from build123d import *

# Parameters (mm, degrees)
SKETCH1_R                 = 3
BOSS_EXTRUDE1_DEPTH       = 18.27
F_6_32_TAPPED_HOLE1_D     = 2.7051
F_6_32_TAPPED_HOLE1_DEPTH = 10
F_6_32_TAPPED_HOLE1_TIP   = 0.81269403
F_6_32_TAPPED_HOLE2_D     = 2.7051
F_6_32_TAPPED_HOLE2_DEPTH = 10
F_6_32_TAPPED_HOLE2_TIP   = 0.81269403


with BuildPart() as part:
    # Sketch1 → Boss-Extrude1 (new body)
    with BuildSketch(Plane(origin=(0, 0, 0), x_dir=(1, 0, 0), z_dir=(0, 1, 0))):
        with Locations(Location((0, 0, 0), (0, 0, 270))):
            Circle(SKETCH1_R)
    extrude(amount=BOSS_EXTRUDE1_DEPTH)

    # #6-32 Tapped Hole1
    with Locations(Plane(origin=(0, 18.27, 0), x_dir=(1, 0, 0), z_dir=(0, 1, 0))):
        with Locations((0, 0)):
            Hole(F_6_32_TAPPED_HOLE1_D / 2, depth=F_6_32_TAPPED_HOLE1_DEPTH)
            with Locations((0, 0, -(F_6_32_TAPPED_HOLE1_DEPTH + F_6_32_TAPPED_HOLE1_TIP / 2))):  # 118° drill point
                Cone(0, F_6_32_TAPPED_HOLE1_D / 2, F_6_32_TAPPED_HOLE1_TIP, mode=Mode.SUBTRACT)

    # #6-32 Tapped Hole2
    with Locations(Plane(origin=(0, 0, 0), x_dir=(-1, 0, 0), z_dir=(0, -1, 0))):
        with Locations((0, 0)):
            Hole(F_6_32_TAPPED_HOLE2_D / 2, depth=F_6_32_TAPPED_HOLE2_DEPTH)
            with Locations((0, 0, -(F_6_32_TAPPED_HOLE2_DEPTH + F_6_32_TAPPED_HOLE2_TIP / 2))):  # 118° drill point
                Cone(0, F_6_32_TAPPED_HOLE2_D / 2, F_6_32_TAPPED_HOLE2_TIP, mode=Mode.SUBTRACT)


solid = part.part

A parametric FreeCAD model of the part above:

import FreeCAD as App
import Part
import Sketcher
from FreeCAD import Vector
Q = App.Units.Quantity

doc = App.newDocument("Part")
params = doc.addObject("Spreadsheet::Sheet", "Params")
for row, (alias, value) in enumerate([
    ("sketch1_diameter", "6 mm"),
    ("pad1_length", "18.27 mm"),
    ("hole_diameter", "2.7051 mm"),
    ("hole_depth", "10 mm"),
    ("hole2_diameter", "2.7051 mm"),
    ("hole2_depth", "10 mm"),
], start=1):
    params.set(f"A{row}", alias)
    params.set(f"B{row}", "=" + value)
    params.setAlias(f"B{row}", alias)

body = doc.addObject("PartDesign::Body", "Body")

# Sketch on XZ plane
sketch1 = body.newObject("Sketcher::SketchObject", "Sketch")
sketch1.AttachmentSupport = (doc.getObject("XZ_Plane"), [""])
sketch1.MapMode = "FlatFace"
sketch1.addGeometry(Part.Circle(Vector(0, 0, 0), Vector(0, 0, 1), 3), False)
sketch1.addConstraint([
    Sketcher.Constraint("Coincident", 0, 3, -1, 1),
    Sketcher.Constraint("Diameter", 0, Q("6 mm")),
])
sketch1.setExpression("Constraints[1]", "Params.sketch1_diameter")
pad1 = body.newObject("PartDesign::Pad", "Pad")
pad1.Profile = sketch1
pad1.setExpression("Length", "Params.pad1_length")
pad1.Reversed = True

# Sketch on XZ plane
sketch2 = body.newObject("Sketcher::SketchObject", "Sketch001")
sketch2.AttachmentSupport = (doc.getObject("XZ_Plane"), [""])
sketch2.MapMode = "FlatFace"
sketch2.AttachmentOffset = App.Placement(Vector(0, 0, -18.27), App.Rotation())
sketch2.addGeometry(Part.Circle(Vector(0, 0, 0), Vector(0, 0, 1), 1.4), False)
sketch2.addConstraint([
    Sketcher.Constraint("Coincident", 0, 3, -1, 1),
    Sketcher.Constraint("Diameter", 0, Q("2.7051 mm")),
])
doc.recompute()
hole = body.newObject("PartDesign::Hole", "Hole")
hole.Profile = sketch2
hole.ThreadType = "None"
hole.setExpression("Diameter", "Params.hole_diameter")
hole.DepthType = "Dimension"
hole.setExpression("Depth", "Params.hole_depth")
hole.DrillPoint = "Angled"
hole.DrillPointAngle = 118
hole.Reversed = True

# Sketch on XZ plane
sketch3 = body.newObject("Sketcher::SketchObject", "Sketch002")
sketch3.AttachmentSupport = (doc.getObject("XZ_Plane"), [""])
sketch3.MapMode = "FlatFace"
sketch3.addGeometry(Part.Circle(Vector(0, 0, 0), Vector(0, 0, 1), 1.4), False)
sketch3.addConstraint([
    Sketcher.Constraint("Coincident", 0, 3, -1, 1),
    Sketcher.Constraint("Diameter", 0, Q("2.7051 mm")),
])
doc.recompute()
hole2 = body.newObject("PartDesign::Hole", "Hole001")
hole2.Profile = sketch3
hole2.ThreadType = "None"
hole2.setExpression("Diameter", "Params.hole2_diameter")
hole2.DepthType = "Dimension"
hole2.setExpression("Depth", "Params.hole2_depth")
hole2.DrillPoint = "Angled"
hole2.DrillPointAngle = 118

doc.recompute()
